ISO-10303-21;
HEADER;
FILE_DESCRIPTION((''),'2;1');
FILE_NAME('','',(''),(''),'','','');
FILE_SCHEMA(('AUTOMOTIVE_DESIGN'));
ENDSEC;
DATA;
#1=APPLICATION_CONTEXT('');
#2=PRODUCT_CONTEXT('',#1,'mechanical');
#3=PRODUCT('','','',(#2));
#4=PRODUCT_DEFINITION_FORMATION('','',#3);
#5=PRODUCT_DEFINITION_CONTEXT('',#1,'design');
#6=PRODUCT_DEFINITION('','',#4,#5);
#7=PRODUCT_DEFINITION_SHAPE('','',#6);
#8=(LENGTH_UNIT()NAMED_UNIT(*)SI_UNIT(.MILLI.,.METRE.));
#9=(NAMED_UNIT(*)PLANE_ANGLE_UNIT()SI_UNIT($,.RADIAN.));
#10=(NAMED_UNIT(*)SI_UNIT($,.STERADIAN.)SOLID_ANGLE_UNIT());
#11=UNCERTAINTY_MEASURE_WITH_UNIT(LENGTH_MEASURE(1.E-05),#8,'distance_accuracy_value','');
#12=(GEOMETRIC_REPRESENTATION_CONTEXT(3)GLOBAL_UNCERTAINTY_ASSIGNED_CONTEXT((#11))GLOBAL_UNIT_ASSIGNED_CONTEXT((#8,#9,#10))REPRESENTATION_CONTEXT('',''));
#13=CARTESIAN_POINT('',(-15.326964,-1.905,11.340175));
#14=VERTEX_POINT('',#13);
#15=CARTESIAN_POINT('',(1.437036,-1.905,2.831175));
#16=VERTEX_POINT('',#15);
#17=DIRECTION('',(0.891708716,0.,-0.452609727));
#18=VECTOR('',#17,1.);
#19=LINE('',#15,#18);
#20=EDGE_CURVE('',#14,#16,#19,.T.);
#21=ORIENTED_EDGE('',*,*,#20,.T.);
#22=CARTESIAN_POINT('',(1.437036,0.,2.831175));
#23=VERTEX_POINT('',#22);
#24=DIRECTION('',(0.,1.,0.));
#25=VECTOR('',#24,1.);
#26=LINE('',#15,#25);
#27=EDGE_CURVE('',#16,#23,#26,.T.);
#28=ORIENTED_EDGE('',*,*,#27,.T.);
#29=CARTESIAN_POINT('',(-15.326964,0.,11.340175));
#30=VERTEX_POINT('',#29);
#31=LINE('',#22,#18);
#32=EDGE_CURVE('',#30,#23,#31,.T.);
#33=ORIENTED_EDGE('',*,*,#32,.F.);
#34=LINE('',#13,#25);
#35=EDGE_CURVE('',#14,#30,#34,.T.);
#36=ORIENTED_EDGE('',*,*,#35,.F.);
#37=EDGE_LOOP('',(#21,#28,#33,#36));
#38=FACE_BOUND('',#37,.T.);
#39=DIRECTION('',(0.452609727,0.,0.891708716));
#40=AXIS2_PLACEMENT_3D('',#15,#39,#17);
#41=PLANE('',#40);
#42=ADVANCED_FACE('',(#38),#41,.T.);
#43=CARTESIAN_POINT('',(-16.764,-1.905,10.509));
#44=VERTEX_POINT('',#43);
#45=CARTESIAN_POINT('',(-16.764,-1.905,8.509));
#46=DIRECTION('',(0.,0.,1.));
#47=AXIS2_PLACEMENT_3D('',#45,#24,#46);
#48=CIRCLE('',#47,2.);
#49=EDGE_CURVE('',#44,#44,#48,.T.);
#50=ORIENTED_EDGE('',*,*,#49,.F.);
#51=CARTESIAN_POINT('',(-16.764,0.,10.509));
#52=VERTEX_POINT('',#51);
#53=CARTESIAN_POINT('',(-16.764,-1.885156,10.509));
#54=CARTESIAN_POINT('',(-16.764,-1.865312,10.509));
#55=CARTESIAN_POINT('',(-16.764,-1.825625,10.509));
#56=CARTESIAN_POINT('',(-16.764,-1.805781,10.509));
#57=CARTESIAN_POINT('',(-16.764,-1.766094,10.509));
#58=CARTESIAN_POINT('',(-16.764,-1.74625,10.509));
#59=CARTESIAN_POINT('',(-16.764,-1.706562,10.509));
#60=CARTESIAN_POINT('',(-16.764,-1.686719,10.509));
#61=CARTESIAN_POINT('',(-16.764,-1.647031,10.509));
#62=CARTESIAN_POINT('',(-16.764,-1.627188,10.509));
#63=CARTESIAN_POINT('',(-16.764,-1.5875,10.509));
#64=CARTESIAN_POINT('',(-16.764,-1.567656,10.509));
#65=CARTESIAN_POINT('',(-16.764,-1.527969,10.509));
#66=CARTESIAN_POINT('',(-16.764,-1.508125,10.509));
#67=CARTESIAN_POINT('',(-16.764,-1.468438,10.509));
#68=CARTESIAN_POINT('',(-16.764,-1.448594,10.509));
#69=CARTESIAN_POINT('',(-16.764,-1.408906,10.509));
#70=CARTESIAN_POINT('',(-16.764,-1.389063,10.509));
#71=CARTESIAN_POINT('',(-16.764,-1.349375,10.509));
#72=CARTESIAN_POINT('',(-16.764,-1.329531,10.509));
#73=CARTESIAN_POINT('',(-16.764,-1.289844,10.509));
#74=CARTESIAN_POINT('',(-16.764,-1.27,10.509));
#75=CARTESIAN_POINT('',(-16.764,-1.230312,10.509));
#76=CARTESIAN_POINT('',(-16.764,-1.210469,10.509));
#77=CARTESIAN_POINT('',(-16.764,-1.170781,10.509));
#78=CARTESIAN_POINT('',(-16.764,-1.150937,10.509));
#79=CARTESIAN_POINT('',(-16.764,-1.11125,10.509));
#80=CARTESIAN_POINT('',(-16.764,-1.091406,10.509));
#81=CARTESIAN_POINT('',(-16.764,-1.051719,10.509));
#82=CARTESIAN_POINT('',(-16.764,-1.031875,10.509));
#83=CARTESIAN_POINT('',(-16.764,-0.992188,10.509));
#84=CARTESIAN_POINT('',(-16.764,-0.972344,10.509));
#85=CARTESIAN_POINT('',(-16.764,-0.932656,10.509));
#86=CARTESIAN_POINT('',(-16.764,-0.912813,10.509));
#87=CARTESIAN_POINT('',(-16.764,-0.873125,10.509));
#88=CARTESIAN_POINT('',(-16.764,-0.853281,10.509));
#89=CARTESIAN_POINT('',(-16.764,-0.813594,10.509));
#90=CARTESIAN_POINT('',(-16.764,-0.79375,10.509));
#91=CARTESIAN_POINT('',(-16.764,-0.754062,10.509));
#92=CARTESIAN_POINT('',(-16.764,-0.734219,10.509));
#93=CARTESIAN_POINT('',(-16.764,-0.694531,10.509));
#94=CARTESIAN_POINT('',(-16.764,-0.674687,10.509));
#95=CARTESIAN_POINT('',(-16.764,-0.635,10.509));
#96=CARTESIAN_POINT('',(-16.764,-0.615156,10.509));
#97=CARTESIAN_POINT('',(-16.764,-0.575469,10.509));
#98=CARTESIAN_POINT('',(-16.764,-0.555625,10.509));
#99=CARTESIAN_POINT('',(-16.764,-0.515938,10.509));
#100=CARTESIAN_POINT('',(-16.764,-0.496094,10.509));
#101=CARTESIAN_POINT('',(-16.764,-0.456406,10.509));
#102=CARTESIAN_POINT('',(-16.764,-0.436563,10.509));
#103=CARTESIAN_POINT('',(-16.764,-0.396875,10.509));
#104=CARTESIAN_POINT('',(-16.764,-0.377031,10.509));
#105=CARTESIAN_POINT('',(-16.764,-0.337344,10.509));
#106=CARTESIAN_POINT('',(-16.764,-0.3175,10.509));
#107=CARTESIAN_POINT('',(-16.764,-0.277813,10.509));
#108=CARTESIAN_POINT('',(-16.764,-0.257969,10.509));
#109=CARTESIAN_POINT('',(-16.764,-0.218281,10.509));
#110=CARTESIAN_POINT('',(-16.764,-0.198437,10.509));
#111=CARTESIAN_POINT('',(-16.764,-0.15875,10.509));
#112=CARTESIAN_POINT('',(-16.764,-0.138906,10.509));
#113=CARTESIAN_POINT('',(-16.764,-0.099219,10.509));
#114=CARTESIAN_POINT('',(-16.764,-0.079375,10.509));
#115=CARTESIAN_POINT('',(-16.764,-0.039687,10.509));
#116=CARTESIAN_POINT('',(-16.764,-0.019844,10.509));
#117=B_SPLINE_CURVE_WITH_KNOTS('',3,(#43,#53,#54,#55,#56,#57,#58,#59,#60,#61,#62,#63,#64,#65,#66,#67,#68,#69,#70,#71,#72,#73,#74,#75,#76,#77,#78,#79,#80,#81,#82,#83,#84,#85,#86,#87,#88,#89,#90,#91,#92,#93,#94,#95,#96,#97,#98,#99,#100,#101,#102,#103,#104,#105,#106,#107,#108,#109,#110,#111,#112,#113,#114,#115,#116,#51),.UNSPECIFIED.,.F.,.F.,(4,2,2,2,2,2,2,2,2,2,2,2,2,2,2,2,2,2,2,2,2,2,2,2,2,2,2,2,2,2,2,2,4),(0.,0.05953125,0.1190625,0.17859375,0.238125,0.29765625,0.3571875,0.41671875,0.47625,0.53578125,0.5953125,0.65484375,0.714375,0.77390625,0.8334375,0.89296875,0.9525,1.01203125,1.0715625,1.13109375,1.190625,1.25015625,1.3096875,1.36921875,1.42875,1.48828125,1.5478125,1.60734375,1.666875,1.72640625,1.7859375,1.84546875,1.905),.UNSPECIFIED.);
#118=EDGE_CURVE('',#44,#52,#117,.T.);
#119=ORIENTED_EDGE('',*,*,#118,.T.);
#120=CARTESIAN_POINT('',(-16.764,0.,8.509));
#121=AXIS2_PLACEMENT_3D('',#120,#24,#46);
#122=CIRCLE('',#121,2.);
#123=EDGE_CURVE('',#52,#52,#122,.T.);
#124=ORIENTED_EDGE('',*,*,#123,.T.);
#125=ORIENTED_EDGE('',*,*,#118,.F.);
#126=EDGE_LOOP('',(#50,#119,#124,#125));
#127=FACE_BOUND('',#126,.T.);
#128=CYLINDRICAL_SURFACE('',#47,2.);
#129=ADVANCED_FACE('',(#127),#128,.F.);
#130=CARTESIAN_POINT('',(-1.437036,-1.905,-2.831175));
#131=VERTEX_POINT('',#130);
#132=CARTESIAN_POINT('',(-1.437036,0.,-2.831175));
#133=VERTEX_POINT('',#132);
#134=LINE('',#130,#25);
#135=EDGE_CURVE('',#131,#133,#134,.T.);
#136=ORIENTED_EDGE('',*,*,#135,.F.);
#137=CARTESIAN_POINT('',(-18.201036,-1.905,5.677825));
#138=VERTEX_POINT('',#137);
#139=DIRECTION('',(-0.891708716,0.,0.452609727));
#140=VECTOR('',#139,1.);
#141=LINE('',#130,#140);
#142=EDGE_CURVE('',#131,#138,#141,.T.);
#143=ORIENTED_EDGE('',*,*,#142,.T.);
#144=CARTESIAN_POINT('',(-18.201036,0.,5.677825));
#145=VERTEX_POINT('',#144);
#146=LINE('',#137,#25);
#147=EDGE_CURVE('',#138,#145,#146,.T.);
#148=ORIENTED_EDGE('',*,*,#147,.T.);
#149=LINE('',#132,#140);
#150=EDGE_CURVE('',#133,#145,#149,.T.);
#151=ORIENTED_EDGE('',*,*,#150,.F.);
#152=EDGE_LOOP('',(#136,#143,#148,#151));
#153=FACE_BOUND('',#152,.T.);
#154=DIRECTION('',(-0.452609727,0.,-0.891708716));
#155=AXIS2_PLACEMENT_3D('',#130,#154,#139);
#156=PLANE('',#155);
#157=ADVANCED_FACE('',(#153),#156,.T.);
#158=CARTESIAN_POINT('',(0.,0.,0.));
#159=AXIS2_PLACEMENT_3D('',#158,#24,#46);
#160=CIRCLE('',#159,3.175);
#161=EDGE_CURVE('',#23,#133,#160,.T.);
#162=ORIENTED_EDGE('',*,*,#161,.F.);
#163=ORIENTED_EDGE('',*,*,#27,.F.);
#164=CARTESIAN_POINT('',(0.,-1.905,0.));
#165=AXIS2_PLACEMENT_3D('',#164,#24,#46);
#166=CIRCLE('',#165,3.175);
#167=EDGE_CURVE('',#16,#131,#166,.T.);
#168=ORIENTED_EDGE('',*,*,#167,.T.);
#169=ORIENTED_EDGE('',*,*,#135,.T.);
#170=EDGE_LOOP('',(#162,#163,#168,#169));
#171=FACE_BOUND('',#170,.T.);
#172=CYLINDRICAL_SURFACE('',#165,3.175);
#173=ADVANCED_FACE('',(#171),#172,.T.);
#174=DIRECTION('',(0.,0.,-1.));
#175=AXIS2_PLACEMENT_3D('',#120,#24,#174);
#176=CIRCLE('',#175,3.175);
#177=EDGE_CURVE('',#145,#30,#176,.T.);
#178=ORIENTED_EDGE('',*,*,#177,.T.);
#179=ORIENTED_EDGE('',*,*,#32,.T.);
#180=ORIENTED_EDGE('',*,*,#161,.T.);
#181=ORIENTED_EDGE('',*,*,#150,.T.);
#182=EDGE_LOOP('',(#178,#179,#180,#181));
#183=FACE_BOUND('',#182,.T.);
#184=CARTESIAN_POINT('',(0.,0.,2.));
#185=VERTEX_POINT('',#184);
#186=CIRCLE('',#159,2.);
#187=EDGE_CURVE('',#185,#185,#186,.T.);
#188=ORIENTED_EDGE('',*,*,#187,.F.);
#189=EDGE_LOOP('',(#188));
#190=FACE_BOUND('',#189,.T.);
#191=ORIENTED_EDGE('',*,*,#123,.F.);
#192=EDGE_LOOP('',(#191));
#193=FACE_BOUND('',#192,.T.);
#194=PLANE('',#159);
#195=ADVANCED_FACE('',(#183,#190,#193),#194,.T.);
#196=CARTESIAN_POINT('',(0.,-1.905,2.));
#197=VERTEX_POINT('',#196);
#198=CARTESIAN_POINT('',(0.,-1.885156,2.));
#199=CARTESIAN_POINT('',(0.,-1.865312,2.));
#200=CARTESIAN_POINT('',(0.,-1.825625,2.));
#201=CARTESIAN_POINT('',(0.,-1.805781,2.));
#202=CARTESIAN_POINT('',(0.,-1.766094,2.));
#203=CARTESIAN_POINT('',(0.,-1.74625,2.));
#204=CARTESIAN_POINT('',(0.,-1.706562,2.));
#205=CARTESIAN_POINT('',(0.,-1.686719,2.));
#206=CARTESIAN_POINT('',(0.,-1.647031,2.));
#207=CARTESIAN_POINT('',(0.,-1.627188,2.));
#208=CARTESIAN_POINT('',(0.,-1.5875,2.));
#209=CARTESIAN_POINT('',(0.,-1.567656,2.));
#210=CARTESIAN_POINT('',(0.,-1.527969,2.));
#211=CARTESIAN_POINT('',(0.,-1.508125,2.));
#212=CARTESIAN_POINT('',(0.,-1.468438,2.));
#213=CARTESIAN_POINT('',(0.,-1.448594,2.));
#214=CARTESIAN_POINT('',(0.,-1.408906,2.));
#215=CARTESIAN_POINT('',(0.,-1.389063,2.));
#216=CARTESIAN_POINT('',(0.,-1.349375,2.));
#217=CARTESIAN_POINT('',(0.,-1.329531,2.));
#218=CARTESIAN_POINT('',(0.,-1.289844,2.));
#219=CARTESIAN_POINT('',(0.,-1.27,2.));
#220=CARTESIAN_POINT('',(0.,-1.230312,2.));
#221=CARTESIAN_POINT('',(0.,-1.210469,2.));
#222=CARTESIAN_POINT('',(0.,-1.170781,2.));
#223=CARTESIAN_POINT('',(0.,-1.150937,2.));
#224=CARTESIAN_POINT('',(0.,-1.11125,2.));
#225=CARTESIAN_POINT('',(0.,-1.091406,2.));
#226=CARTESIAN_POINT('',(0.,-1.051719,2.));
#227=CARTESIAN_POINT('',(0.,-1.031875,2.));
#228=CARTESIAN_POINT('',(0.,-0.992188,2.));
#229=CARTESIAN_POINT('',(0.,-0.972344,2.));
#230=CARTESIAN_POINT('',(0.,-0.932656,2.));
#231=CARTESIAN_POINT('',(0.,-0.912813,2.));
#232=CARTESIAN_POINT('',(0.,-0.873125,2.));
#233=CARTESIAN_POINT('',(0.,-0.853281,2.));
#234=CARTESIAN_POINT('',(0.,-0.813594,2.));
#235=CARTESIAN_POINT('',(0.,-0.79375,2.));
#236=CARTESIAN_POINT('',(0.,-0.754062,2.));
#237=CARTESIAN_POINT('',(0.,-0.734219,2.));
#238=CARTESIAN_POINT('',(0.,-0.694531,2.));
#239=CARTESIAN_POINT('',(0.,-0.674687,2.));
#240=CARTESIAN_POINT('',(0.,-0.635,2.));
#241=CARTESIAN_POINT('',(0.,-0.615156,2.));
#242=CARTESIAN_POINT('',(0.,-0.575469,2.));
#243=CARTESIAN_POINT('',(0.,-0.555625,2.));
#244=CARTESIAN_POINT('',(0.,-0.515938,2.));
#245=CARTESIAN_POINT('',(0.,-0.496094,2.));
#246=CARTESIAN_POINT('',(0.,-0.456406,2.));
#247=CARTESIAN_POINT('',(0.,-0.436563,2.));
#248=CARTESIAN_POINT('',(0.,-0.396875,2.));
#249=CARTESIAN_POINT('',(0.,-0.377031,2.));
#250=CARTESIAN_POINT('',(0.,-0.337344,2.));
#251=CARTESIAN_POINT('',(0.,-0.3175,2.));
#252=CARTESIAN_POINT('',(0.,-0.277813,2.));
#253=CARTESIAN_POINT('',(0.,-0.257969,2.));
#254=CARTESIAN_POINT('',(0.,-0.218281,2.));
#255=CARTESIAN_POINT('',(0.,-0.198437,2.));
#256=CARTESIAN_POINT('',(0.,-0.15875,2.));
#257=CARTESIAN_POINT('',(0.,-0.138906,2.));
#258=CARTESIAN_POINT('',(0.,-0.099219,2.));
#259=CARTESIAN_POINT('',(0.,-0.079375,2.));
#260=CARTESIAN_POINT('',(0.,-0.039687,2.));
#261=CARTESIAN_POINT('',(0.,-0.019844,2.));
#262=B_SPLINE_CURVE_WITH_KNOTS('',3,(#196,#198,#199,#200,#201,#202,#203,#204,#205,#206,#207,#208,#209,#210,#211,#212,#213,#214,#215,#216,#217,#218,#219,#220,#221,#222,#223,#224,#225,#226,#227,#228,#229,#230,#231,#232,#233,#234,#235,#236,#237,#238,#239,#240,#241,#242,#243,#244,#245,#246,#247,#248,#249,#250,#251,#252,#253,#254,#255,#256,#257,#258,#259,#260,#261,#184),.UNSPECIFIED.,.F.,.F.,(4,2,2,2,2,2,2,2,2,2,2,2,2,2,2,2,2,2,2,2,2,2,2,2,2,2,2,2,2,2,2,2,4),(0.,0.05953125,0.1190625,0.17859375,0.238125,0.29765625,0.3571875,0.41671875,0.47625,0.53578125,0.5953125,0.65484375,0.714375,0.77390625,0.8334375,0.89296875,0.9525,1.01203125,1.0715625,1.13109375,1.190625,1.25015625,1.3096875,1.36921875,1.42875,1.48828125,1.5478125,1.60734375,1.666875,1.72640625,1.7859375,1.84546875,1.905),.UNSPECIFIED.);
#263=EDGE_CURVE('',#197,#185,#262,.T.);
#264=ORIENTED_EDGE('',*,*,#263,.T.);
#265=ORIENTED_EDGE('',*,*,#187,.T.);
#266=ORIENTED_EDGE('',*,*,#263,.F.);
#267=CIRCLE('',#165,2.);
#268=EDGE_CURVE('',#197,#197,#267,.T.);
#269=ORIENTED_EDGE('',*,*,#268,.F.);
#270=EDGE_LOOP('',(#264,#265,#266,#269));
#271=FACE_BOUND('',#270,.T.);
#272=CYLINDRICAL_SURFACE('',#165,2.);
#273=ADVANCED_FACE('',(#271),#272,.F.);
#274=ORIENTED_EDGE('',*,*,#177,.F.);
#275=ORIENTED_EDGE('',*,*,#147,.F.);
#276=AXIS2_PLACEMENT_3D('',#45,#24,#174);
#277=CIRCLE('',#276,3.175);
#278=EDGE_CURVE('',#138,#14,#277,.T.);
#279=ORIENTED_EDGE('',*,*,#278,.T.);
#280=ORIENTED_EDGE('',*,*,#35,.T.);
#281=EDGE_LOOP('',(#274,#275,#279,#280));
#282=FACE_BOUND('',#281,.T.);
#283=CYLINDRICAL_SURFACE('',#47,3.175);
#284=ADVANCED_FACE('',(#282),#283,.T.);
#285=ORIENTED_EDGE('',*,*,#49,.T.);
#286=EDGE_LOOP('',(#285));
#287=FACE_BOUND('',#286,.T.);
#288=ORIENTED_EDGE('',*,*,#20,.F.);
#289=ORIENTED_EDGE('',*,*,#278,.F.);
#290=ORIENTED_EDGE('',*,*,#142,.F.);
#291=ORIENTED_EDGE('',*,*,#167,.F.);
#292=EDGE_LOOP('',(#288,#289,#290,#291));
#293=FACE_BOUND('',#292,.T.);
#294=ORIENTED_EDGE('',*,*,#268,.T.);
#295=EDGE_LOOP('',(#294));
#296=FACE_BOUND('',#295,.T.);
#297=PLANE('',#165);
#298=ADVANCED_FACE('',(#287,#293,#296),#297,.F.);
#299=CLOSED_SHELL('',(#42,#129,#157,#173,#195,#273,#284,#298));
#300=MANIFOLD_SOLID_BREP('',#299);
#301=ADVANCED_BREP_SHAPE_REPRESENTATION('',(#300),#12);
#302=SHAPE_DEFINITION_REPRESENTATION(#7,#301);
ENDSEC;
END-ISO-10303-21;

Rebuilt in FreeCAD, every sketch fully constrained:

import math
import FreeCAD as App
import Part
import Sketcher
from FreeCAD import Vector
Q = App.Units.Quantity

doc = App.newDocument("Part")
params = doc.addObject("Spreadsheet::Sheet", "Params")
for row, (alias, value) in enumerate([
    ("sketch1_radius", "0.125 in"),
    ("pad1_length", "0.075 in"),
], start=1):
    params.set(f"A{row}", alias)
    params.set(f"B{row}", "=" + value)
    params.setAlias(f"B{row}", alias)

body = doc.addObject("PartDesign::Body", "Body")

sketch1 = doc.addObject("Sketcher::SketchObject", "Sketch")
body.addObject(sketch1)
sketch1.AttachmentSupport = (doc.XZ_Plane, [""])
sketch1.MapMode = "FlatFace"
sketch1.addGeometry(Part.LineSegment(Vector(-15.326964, 11.340175, 0), Vector(1.437036, 2.831175, 0)), False)
sketch1.addGeometry(Part.ArcOfCircle(Part.Circle(Vector(0, 0, 0), Vector(0, 0, 1), 3.175), math.radians(-116.911245), math.radians(63.088755)), False)
sketch1.addGeometry(Part.LineSegment(Vector(-1.437036, -2.831175, 0), Vector(-18.201036, 5.677825, 0)), False)
sketch1.addGeometry(Part.ArcOfCircle(Part.Circle(Vector(-16.764, 8.509, 0), Vector(0, 0, 1), 3.175), math.radians(63.088755), math.radians(243.088755)), False)
sketch1.addGeometry(Part.Circle(Vector(-16.764, 8.509, 0), Vector(0, 0, 1), 2), False)
sketch1.addGeometry(Part.Circle(Vector(0, 0, 0), Vector(0, 0, 1), 2), False)
sketch1.addConstraint(Sketcher.Constraint("Tangent", 0, 2, 1, 2))
sketch1.addConstraint(Sketcher.Constraint("Tangent", 1, 1, 2, 1))
sketch1.addConstraint(Sketcher.Constraint("Tangent", 2, 2, 3, 2))
sketch1.addConstraint(Sketcher.Constraint("Tangent", 3, 1, 0, 1))
sketch1.addConstraint(Sketcher.Constraint("Coincident", 1, 3, -1, 1))
sketch1.addConstraint(Sketcher.Constraint("Coincident", 5, 3, -1, 1))
sketch1.addConstraint(Sketcher.Constraint("Coincident", 4, 3, 3, 3))
sketch1.addConstraint(Sketcher.Constraint("Equal", 1, 3))
sketch1.addConstraint(Sketcher.Constraint("Equal", 4, 5))
sketch1.addConstraint(Sketcher.Constraint("Radius", 1, Q("0.125 in")))
sketch1.addConstraint(Sketcher.Constraint("Diameter", 4, Q("4 mm")))
sketch1.addConstraint(Sketcher.Constraint("DistanceX", 3, 3, -1, 1, Q("0.66 in")))
sketch1.addConstraint(Sketcher.Constraint("DistanceY", -1, 1, 3, 3, Q("0.335 in")))
sketch1.setExpression("Constraints[9]", "Params.sketch1_radius")
pad1 = doc.addObject("PartDesign::Pad", "Pad")
body.addObject(pad1)
pad1.Profile = sketch1
pad1.setExpression("Length", "Params.pad1_length")

doc.recompute()
